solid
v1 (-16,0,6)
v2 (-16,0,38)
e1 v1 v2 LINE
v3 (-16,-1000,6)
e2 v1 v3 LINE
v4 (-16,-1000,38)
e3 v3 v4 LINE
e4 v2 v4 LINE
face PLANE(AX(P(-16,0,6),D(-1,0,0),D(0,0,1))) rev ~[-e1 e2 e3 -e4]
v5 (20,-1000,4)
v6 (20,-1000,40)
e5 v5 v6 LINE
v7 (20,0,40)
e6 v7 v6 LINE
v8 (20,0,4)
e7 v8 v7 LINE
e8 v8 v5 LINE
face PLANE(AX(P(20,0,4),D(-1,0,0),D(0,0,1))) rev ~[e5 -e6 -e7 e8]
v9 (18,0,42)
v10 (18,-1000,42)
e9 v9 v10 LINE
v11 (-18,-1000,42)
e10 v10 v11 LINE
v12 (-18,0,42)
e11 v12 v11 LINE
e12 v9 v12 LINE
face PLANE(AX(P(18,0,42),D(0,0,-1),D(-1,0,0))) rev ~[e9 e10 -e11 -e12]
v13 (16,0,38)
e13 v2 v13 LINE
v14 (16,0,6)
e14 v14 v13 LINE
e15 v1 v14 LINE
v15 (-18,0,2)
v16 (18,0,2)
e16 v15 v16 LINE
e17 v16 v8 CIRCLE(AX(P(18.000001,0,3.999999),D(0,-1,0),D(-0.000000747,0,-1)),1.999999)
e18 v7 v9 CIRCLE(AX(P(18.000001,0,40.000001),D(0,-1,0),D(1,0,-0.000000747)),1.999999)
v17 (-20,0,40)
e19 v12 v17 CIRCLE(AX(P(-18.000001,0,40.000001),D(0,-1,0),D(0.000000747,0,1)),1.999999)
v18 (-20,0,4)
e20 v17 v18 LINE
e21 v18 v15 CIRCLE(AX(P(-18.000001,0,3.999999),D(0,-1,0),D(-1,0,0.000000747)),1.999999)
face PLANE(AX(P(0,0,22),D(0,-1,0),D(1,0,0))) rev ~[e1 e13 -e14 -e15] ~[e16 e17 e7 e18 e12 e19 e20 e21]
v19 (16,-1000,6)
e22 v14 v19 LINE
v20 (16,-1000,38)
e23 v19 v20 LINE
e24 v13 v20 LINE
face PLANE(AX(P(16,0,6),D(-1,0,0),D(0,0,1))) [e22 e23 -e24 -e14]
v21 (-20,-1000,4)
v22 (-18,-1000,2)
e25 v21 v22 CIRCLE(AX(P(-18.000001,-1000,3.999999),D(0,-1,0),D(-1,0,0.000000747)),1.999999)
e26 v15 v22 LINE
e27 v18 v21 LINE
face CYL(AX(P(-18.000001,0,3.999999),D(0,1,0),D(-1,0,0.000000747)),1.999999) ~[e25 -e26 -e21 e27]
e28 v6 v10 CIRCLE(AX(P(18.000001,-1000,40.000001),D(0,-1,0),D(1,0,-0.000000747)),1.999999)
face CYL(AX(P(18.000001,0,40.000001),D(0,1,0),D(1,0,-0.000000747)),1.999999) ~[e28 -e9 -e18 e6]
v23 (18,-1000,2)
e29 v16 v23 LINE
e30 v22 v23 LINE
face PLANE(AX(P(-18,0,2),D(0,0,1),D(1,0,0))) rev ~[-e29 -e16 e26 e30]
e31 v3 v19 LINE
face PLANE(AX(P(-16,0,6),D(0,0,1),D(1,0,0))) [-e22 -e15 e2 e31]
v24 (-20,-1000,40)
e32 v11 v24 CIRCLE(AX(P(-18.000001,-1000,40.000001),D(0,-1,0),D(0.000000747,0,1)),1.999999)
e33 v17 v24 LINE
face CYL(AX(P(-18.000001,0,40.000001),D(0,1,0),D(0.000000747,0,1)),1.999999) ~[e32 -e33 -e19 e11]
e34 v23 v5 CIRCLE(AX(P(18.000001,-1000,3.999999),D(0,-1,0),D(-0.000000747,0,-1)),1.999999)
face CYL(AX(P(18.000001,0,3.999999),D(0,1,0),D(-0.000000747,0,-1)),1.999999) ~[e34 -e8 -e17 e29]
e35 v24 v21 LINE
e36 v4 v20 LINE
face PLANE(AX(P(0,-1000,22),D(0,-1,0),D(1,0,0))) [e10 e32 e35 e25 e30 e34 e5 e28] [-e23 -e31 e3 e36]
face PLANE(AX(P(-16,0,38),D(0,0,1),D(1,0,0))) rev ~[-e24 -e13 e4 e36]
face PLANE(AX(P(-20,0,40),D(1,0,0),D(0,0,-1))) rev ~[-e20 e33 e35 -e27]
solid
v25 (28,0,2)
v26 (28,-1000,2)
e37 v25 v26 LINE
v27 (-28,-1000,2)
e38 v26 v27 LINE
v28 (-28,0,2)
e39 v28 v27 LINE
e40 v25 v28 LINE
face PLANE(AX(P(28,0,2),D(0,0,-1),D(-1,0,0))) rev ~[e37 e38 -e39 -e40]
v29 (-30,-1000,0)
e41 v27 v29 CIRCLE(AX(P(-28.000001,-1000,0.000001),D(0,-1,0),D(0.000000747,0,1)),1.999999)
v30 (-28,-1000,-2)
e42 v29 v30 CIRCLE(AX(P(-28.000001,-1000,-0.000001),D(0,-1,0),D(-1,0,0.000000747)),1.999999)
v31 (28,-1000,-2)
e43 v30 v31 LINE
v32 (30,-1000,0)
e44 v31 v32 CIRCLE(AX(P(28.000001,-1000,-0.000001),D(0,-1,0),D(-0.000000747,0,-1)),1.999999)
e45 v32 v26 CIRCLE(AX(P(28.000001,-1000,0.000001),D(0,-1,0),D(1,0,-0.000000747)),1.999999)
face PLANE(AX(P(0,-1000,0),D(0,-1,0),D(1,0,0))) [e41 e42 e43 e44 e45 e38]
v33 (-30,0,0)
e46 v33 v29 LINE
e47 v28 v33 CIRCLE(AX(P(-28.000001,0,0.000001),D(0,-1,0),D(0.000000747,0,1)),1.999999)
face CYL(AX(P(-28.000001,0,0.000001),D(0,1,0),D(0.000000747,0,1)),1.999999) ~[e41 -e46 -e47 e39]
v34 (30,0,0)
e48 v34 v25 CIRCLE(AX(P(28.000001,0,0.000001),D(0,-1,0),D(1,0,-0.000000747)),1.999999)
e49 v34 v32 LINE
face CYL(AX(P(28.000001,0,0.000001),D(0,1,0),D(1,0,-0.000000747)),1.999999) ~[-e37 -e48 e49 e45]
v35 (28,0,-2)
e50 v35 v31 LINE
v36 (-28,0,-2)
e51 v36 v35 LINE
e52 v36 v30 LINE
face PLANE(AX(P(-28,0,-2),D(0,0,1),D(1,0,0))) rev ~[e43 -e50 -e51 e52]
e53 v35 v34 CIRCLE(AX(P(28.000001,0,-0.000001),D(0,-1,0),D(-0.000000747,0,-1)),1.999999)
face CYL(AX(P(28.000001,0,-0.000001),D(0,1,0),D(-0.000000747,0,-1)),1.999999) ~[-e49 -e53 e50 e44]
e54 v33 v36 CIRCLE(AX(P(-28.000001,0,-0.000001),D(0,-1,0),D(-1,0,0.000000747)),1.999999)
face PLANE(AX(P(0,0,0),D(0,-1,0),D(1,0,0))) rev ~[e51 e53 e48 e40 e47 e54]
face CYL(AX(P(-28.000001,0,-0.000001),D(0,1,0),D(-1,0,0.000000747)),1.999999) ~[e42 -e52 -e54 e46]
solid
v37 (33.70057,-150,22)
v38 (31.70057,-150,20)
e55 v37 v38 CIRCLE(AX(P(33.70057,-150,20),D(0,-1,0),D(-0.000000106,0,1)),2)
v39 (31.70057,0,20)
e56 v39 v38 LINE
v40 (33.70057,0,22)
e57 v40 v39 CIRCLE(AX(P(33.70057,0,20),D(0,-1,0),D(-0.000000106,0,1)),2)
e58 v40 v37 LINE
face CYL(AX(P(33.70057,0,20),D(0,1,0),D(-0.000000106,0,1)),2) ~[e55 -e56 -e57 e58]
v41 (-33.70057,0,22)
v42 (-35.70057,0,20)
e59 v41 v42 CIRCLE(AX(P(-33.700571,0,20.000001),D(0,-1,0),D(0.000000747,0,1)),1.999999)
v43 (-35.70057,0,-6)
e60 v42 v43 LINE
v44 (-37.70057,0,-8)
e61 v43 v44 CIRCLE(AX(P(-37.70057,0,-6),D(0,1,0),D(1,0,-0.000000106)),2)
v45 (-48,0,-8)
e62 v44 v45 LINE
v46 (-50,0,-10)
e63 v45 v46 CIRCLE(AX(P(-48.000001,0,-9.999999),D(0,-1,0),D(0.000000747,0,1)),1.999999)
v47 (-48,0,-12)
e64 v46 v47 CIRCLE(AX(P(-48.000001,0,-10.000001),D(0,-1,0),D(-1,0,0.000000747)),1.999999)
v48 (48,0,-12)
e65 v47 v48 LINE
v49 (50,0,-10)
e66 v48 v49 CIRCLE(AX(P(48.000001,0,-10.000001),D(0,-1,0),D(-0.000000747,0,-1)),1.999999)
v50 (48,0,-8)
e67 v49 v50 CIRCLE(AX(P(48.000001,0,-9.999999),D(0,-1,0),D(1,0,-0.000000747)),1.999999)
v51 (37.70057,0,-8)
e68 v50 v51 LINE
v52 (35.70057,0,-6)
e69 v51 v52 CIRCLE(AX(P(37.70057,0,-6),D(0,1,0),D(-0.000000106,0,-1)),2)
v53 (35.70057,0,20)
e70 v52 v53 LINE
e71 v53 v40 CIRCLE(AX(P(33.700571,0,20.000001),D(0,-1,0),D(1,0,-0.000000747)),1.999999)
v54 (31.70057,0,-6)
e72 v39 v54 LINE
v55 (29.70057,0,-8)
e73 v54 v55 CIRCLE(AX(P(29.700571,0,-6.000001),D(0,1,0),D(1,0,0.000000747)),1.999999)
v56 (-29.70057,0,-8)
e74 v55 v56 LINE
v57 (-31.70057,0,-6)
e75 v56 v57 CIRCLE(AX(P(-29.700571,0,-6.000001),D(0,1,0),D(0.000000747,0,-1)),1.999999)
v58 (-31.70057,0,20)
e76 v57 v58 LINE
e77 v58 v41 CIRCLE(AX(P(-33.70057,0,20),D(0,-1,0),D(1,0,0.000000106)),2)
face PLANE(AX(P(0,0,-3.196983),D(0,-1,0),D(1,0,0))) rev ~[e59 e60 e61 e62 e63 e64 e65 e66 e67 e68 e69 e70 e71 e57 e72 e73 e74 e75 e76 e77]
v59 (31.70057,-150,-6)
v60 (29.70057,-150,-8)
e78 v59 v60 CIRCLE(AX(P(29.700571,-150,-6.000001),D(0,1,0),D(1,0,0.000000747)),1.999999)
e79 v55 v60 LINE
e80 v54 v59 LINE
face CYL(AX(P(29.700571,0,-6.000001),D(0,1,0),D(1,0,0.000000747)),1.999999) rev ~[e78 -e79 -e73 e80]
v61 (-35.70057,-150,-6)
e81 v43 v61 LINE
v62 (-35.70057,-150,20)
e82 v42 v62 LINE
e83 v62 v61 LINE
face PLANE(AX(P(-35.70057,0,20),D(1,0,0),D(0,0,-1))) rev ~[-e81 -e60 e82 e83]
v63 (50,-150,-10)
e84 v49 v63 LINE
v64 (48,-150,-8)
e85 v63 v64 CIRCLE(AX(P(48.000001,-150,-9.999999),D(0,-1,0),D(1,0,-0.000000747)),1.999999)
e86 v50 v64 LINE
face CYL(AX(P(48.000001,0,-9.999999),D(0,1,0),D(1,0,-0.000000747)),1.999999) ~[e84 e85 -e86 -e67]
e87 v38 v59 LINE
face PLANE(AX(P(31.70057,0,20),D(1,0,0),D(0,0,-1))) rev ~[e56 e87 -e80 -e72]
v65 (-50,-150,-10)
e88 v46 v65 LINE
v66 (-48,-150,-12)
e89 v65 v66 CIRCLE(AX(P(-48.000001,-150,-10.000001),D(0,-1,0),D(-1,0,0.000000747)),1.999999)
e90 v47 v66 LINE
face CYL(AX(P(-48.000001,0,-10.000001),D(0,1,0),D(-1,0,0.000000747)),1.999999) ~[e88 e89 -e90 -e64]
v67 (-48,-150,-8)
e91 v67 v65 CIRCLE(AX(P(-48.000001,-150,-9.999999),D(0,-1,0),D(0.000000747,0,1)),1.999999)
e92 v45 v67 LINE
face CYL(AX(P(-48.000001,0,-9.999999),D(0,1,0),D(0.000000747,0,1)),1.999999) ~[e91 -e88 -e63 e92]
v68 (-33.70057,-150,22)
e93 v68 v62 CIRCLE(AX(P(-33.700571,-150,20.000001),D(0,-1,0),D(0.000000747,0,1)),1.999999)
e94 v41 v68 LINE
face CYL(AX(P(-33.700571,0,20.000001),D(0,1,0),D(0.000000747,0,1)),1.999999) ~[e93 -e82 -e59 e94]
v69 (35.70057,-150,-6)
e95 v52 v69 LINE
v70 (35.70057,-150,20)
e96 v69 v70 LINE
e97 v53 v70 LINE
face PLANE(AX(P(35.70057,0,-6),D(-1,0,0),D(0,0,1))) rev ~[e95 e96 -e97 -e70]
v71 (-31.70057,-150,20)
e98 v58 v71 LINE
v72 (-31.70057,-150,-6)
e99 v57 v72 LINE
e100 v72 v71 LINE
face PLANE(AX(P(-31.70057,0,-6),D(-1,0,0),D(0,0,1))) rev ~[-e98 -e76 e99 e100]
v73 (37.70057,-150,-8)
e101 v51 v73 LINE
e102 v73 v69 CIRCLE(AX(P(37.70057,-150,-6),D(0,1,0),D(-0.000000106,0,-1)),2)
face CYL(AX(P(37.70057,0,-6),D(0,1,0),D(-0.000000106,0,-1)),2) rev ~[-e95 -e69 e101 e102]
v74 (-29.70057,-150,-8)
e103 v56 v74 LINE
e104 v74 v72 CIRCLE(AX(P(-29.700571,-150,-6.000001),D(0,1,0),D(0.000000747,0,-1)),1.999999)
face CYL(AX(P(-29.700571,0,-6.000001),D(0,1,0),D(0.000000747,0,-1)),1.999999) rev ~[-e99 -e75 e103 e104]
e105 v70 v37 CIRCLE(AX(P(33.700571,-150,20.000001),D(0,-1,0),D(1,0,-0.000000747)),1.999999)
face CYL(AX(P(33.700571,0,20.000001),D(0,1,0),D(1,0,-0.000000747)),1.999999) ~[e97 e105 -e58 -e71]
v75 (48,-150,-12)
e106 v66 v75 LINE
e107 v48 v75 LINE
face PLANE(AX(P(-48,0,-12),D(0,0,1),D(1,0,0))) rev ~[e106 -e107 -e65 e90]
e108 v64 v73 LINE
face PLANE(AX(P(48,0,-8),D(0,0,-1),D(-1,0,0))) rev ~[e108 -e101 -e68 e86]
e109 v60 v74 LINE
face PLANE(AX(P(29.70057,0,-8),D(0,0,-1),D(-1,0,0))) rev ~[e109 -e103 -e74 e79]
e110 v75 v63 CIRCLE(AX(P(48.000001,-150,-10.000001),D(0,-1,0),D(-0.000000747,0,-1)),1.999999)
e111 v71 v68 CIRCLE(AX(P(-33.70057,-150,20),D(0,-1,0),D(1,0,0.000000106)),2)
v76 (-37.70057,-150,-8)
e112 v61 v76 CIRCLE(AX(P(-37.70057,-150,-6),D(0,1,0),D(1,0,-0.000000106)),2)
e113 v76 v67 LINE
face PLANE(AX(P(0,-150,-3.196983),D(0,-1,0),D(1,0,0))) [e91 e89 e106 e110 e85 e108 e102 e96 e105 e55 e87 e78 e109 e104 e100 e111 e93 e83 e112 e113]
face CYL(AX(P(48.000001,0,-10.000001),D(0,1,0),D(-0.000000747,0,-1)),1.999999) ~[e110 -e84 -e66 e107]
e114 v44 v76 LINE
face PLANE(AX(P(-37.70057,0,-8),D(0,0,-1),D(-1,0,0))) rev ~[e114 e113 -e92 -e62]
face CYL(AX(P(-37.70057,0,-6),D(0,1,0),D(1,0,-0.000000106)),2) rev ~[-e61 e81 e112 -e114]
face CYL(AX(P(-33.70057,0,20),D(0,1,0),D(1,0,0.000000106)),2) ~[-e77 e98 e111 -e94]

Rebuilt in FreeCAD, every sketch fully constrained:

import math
import FreeCAD as App
import Part
import Sketcher

V = App.Vector
Q = App.Units.Quantity

doc = App.newDocument("Part")
body = doc.addObject("PartDesign::Body", "Body")

# Sketch on XZ plane
sketch1 = doc.addObject("Sketcher::SketchObject", "Sketch")
body.addObject(sketch1)
sketch1.AttachmentSupport = (doc.XZ_Plane, [""])
sketch1.MapMode = "FlatFace"
sketch1.addGeometry([
    Part.LineSegment(V(29.7, -8, 0), V(-29.7, -8, 0)),  # 0
    Part.ArcOfCircle(Part.Circle(V(-29.7, -6, 0), V(0, 0, 1), 2), math.radians(180), math.radians(270)),  # 1
    Part.LineSegment(V(-31.7, -6, 0), V(-31.7, 20, 0)),  # 2
    Part.ArcOfCircle(Part.Circle(V(-33.7, 20, 0), V(0, 0, 1), 2), math.radians(0), math.radians(90)),  # 3
    Part.ArcOfCircle(Part.Circle(V(-33.7, 20, 0), V(0, 0, 1), 2), math.radians(90), math.radians(180)),  # 4
    Part.LineSegment(V(-35.7, 20, 0), V(-35.7, -6, 0)),  # 5
    Part.ArcOfCircle(Part.Circle(V(-37.7, -6, 0), V(0, 0, 1), 2), math.radians(-90), math.radians(0)),  # 6
    Part.LineSegment(V(-37.7, -8, 0), V(-48, -8, 0)),  # 7
    Part.ArcOfCircle(Part.Circle(V(-48, -10, 0), V(0, 0, 1), 2), math.radians(90), math.radians(180)),  # 8
    Part.ArcOfCircle(Part.Circle(V(-48, -10, 0), V(0, 0, 1), 2), math.radians(180), math.radians(270)),  # 9
    Part.LineSegment(V(-48, -12, 0), V(48, -12, 0)),  # 10
    Part.ArcOfCircle(Part.Circle(V(48, -10, 0), V(0, 0, 1), 2), math.radians(-90), math.radians(0)),  # 11
    Part.ArcOfCircle(Part.Circle(V(48, -10, 0), V(0, 0, 1), 2), math.radians(0), math.radians(90)),  # 12
    Part.LineSegment(V(48, -8, 0), V(37.7, -8, 0)),  # 13
    Part.ArcOfCircle(Part.Circle(V(37.7, -6, 0), V(0, 0, 1), 2), math.radians(-180), math.radians(-90)),  # 14
    Part.LineSegment(V(35.7, -6, 0), V(35.7, 20, 0)),  # 15
    Part.ArcOfCircle(Part.Circle(V(33.7, 20, 0), V(0, 0, 1), 2), math.radians(0), math.radians(90)),  # 16
    Part.ArcOfCircle(Part.Circle(V(33.7, 20, 0), V(0, 0, 1), 2), math.radians(90), math.radians(180)),  # 17
    Part.LineSegment(V(31.7, 20, 0), V(31.7, -6, 0)),  # 18
    Part.ArcOfCircle(Part.Circle(V(29.7, -6, 0), V(0, 0, 1), 2), math.radians(-90), math.radians(0)),  # 19
], False)
sketch1.addConstraint([
    Sketcher.Constraint("Tangent", 0, 2, 1, 2),
    Sketcher.Constraint("Tangent", 1, 1, 2, 1),
    Sketcher.Constraint("Tangent", 2, 2, 3, 1),
    Sketcher.Constraint("Tangent", 3, 2, 4, 1),
    Sketcher.Constraint("Tangent", 4, 2, 5, 1),
    Sketcher.Constraint("Tangent", 5, 2, 6, 2),
    Sketcher.Constraint("Tangent", 6, 1, 7, 1),
    Sketcher.Constraint("Tangent", 7, 2, 8, 1),
    Sketcher.Constraint("Tangent", 8, 2, 9, 1),
    Sketcher.Constraint("Tangent", 9, 2, 10, 1),
    Sketcher.Constraint("Tangent", 10, 2, 11, 1),
    Sketcher.Constraint("Tangent", 11, 2, 12, 1),
    Sketcher.Constraint("Tangent", 12, 2, 13, 1),
    Sketcher.Constraint("Tangent", 13, 2, 14, 2),
    Sketcher.Constraint("Tangent", 14, 1, 15, 1),
    Sketcher.Constraint("Tangent", 15, 2, 16, 1),
    Sketcher.Constraint("Tangent", 16, 2, 17, 1),
    Sketcher.Constraint("Tangent", 17, 2, 18, 1),
    Sketcher.Constraint("Tangent", 18, 2, 19, 2),
    Sketcher.Constraint("Tangent", 19, 1, 0, 1),
    Sketcher.Constraint("Horizontal", 0),
    Sketcher.Constraint("Vertical", 2),
    Sketcher.Constraint("Vertical", 5),
    Sketcher.Constraint("Horizontal", 7),
    Sketcher.Constraint("Horizontal", 10),
    Sketcher.Constraint("Horizontal", 13),
    Sketcher.Constraint("Vertical", 15),
    Sketcher.Constraint("Vertical", 18),
    Sketcher.Constraint("Equal", 1, 3),
    Sketcher.Constraint("Equal", 3, 4),
    Sketcher.Constraint("Equal", 4, 6),
    Sketcher.Constraint("Equal", 6, 8),
    Sketcher.Constraint("Equal", 8, 9),
    Sketcher.Constraint("Equal", 9, 11),
    Sketcher.Constraint("Equal", 11, 12),
    Sketcher.Constraint("Equal", 12, 14),
    Sketcher.Constraint("Equal", 14, 16),
    Sketcher.Constraint("Equal", 16, 17),
    Sketcher.Constraint("Equal", 17, 19),
    Sketcher.Constraint("Symmetric", 3, 3, 16, 3, -2),
    Sketcher.Constraint("Symmetric", 8, 2, 11, 2, -2),
    Sketcher.Constraint("Horizontal", 1, 3, 6, 3),
    Sketcher.Constraint("Horizontal", 12, 3, 8, 2),
    Sketcher.Constraint("Vertical", 4, 3, 3, 2),
    Sketcher.Constraint("Vertical", 17, 3, 16, 2),
    Sketcher.Constraint("Radius", 1, Q("1.999999 mm")),
    Sketcher.Constraint("DistanceX", 10, 1, 10, 2, Q("96 mm")),
    Sketcher.Constraint("DistanceY", 2, 1, 2, 2, Q("26 mm")),
    Sketcher.Constraint("DistanceY", 1, 3, -1, 1, Q("6.000001 mm")),
    Sketcher.Constraint("DistanceX", 0, 2, 0, 1, Q("59.40114 mm")),
])
pad1 = doc.addObject("PartDesign::Pad", "Pad")
body.addObject(pad1)
pad1.Profile = sketch1
pad1.Length = 150
body2 = doc.addObject("PartDesign::Body", "Body001")

# Sketch on XZ plane
sketch2 = doc.addObject("Sketcher::SketchObject", "Sketch001")
body2.addObject(sketch2)
sketch2.AttachmentSupport = (doc.getObject("XZ_Plane001"), [""])
sketch2.MapMode = "FlatFace"
sketch2.addGeometry([
    Part.ArcOfCircle(Part.Circle(V(-18, 4, 0), V(0, 0, 1), 2), math.radians(180), math.radians(270)),  # 0
    Part.LineSegment(V(-18, 2, 0), V(18, 2, 0)),  # 1
    Part.ArcOfCircle(Part.Circle(V(18, 4, 0), V(0, 0, 1), 2), math.radians(-90), math.radians(0)),  # 2
    Part.LineSegment(V(20, 4, 0), V(20, 40, 0)),  # 3
    Part.ArcOfCircle(Part.Circle(V(18, 40, 0), V(0, 0, 1), 2), math.radians(0), math.radians(90)),  # 4
    Part.LineSegment(V(18, 42, 0), V(-18, 42, 0)),  # 5
    Part.ArcOfCircle(Part.Circle(V(-18, 40, 0), V(0, 0, 1), 2), math.radians(90), math.radians(180)),  # 6
    Part.LineSegment(V(-20, 40, 0), V(-20, 4, 0)),  # 7
    Part.LineSegment(V(16, 6, 0), V(-16, 6, 0)),  # 8
    Part.LineSegment(V(-16, 6, 0), V(-16, 38, 0)),  # 9
    Part.LineSegment(V(-16, 38, 0), V(16, 38, 0)),  # 10
    Part.LineSegment(V(16, 38, 0), V(16, 6, 0)),  # 11
], False)
sketch2.addConstraint([
    Sketcher.Constraint("Tangent", 0, 2, 1, 1),
    Sketcher.Constraint("Tangent", 1, 2, 2, 1),
    Sketcher.Constraint("Tangent", 2, 2, 3, 1),
    Sketcher.Constraint("Tangent", 3, 2, 4, 1),
    Sketcher.Constraint("Tangent", 4, 2, 5, 1),
    Sketcher.Constraint("Tangent", 5, 2, 6, 1),
    Sketcher.Constraint("Tangent", 6, 2, 7, 1),
    Sketcher.Constraint("Tangent", 7, 2, 0, 1),
    Sketcher.Constraint("Coincident", 8, 2, 9, 1),
    Sketcher.Constraint("Coincident", 9, 2, 10, 1),
    Sketcher.Constraint("Coincident", 10, 2, 11, 1),
    Sketcher.Constraint("Coincident", 11, 2, 8, 1),
    Sketcher.Constraint("Horizontal", 1),
    Sketcher.Constraint("Vertical", 3),
    Sketcher.Constraint("Horizontal", 5),
    Sketcher.Constraint("Vertical", 7),
    Sketcher.Constraint("Horizontal", 8),
    Sketcher.Constraint("Vertical", 9),
    Sketcher.Constraint("Horizontal", 10),
    Sketcher.Constraint("Vertical", 11),
    Sketcher.Constraint("Equal", 0, 2),
    Sketcher.Constraint("Equal", 2, 4),
    Sketcher.Constraint("Equal", 4, 6),
    Sketcher.Constraint("Equal", 5, 3),
    Sketcher.Constraint("Equal", 10, 9),
    Sketcher.Constraint("Radius", 0, Q("1.999999 mm")),
    Sketcher.Constraint("DistanceX", 1, 1, 1, 2, Q("36 mm")),
    Sketcher.Constraint("DistanceX", 8, 2, 8, 1, Q("32 mm")),
    Sketcher.Constraint("DistanceX", 0, 3, -1, 1, Q("18.000001 mm")),
    Sketcher.Constraint("DistanceY", -1, 1, 0, 3, Q("3.999999 mm")),
    Sketcher.Constraint("DistanceX", 8, 2, -1, 1, Q("16 mm")),
    Sketcher.Constraint("DistanceY", -1, 1, 8, 2, Q("6 mm")),
])
pad2 = doc.addObject("PartDesign::Pad", "Pad001")
body2.addObject(pad2)
pad2.Profile = sketch2
pad2.Length = 1000
body3 = doc.addObject("PartDesign::Body", "Body002")

# Sketch on XZ plane
sketch3 = doc.addObject("Sketcher::SketchObject", "Sketch002")
body3.addObject(sketch3)
sketch3.AttachmentSupport = (doc.getObject("XZ_Plane002"), [""])
sketch3.MapMode = "FlatFace"
sketch3.addGeometry([
    Part.ArcOfCircle(Part.Circle(V(-28, 0, 0), V(0, 0, 1), 2), math.radians(90), math.radians(180)),  # 0
    Part.ArcOfCircle(Part.Circle(V(-28, 0, 0), V(0, 0, 1), 2), math.radians(180), math.radians(270)),  # 1
    Part.LineSegment(V(-28, -2, 0), V(28, -2, 0)),  # 2
    Part.ArcOfCircle(Part.Circle(V(28, 0, 0), V(0, 0, 1), 2), math.radians(-90), math.radians(0)),  # 3
    Part.ArcOfCircle(Part.Circle(V(28, 0, 0), V(0, 0, 1), 2), math.radians(0), math.radians(90)),  # 4
    Part.LineSegment(V(28, 2, 0), V(-28, 2, 0)),  # 5
], False)
sketch3.addConstraint([
    Sketcher.Constraint("Tangent", 0, 2, 1, 1),
    Sketcher.Constraint("Tangent", 1, 2, 2, 1),
    Sketcher.Constraint("Tangent", 2, 2, 3, 1),
    Sketcher.Constraint("Tangent", 3, 2, 4, 1),
    Sketcher.Constraint("Tangent", 4, 2, 5, 1),
    Sketcher.Constraint("Tangent", 5, 2, 0, 1),
    Sketcher.Constraint("Horizontal", 2),
    Sketcher.Constraint("Horizontal", 5),
    Sketcher.Constraint("Equal", 0, 1),
    Sketcher.Constraint("Equal", 1, 3),
    Sketcher.Constraint("Symmetric", 0, 3, 3, 3, -1, 1),
    Sketcher.Constraint("PointOnObject", 0, 2, -1),
    Sketcher.Constraint("PointOnObject", 3, 2, -1),
    Sketcher.Constraint("Radius", 0, Q("1.999999 mm")),
    Sketcher.Constraint("DistanceX", 2, 1, 2, 2, Q("56 mm")),
])
pad3 = doc.addObject("PartDesign::Pad", "Pad002")
body3.addObject(pad3)
pad3.Profile = sketch3
pad3.Length = 1000

doc.recompute()
